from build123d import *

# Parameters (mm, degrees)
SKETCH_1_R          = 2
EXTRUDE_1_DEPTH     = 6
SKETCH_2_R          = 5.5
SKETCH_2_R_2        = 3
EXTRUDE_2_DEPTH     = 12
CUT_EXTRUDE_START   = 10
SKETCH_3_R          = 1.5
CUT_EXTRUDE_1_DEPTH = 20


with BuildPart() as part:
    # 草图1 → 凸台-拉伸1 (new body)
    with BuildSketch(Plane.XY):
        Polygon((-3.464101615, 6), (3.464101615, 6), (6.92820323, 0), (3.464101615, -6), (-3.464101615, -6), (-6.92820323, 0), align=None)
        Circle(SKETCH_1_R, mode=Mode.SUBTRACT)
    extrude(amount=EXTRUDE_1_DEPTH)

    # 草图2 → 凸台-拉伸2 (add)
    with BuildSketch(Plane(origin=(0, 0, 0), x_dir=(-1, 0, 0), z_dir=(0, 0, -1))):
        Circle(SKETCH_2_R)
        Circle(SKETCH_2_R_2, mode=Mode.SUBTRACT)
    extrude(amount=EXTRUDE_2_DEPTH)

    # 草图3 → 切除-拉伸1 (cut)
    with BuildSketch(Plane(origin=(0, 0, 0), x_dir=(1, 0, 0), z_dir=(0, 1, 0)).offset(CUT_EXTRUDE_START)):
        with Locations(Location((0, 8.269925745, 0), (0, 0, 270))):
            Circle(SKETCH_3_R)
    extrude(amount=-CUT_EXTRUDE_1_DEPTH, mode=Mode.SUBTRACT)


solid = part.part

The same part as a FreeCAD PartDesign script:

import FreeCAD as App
import Part
import Sketcher
from FreeCAD import Vector
Q = App.Units.Quantity

doc = App.newDocument("Part")
body = doc.addObject("PartDesign::Body", "Body")

# Sketch on XY plane
sketch1 = doc.addObject("Sketcher::SketchObject", "Sketch")
body.addObject(sketch1)
sketch1.AttachmentSupport = (doc.XY_Plane, [""])
sketch1.MapMode = "FlatFace"
sketch1.addGeometry(Part.LineSegment(Vector(3.5, 6, 0), Vector(-3.5, 6, 0)), False)
sketch1.addGeometry(Part.LineSegment(Vector(-3.5, 6, 0), Vector(-6.9, 0, 0)), False)
sketch1.addGeometry(Part.LineSegment(Vector(-6.9, 0, 0), Vector(-3.5, -6, 0)), False)
sketch1.addGeometry(Part.LineSegment(Vector(-3.5, -6, 0), Vector(3.5, -6, 0)), False)
sketch1.addGeometry(Part.LineSegment(Vector(3.5, -6, 0), Vector(6.9, 0, 0)), False)
sketch1.addGeometry(Part.LineSegment(Vector(6.9, 0, 0), Vector(3.5, 6, 0)), False)
sketch1.addGeometry(Part.Circle(Vector(0, 0, 0), Vector(0, 0, 1), 2), False)
sketch1.addConstraint(Sketcher.Constraint("Coincident", 0, 2, 1, 1))
sketch1.addConstraint(Sketcher.Constraint("Coincident", 1, 2, 2, 1))
sketch1.addConstraint(Sketcher.Constraint("Coincident", 2, 2, 3, 1))
sketch1.addConstraint(Sketcher.Constraint("Coincident", 3, 2, 4, 1))
sketch1.addConstraint(Sketcher.Constraint("Coincident", 4, 2, 5, 1))
sketch1.addConstraint(Sketcher.Constraint("Coincident", 5, 2, 0, 1))
sketch1.addConstraint(Sketcher.Constraint("Horizontal", 0))
sketch1.addConstraint(Sketcher.Constraint("Horizontal", 3))
sketch1.addConstraint(Sketcher.Constraint("Coincident", 6, 3, -1, 1))
sketch1.addConstraint(Sketcher.Constraint("Symmetric", 0, 2, 3, 2, -1, 1))
sketch1.addConstraint(Sketcher.Constraint("Symmetric", 1, 2, 4, 2, -1, 1))
sketch1.addConstraint(Sketcher.Constraint("PointOnObject", 1, 2, -1))
sketch1.addConstraint(Sketcher.Constraint("Parallel", 2, 5))
sketch1.addConstraint(Sketcher.Constraint("Vertical", 0, 2, 2, 2))
sketch1.addConstraint(Sketcher.Constraint("Diameter", 6, Q("4 mm")))
sketch1.addConstraint(Sketcher.Constraint("Angle", 1, Q("-120 deg")))
sketch1.addConstraint(Sketcher.Constraint("DistanceY", -1, 1, 0, 2, Q("6 mm")))
sketch1.addConstraint(Sketcher.Constraint("DistanceX", 0, 2, -1, 1, Q("3.464102 mm")))
pad1 = doc.addObject("PartDesign::Pad", "Pad")
body.addObject(pad1)
pad1.Profile = sketch1
pad1.Length = 6

# Sketch on XY plane
sketch2 = doc.addObject("Sketcher::SketchObject", "Sketch001")
body.addObject(sketch2)
sketch2.AttachmentSupport = (doc.XY_Plane, [""])
sketch2.MapMode = "FlatFace"
sketch2.addGeometry(Part.Circle(Vector(0, 0, 0), Vector(0, 0, 1), 5.5), False)
sketch2.addGeometry(Part.Circle(Vector(0, 0, 0), Vector(0, 0, 1), 3), False)
sketch2.addConstraint(Sketcher.Constraint("Coincident", 0, 3, -1, 1))
sketch2.addConstraint(Sketcher.Constraint("Coincident", 1, 3, -1, 1))
sketch2.addConstraint(Sketcher.Constraint("Diameter", 0, Q("11 mm")))
sketch2.addConstraint(Sketcher.Constraint("Diameter", 1, Q("6 mm")))
pad2 = doc.addObject("PartDesign::Pad", "Pad001")
body.addObject(pad2)
pad2.Profile = sketch2
pad2.Length = 12
pad2.Reversed = True

# Sketch on XZ plane
sketch3 = doc.addObject("Sketcher::SketchObject", "Sketch002")
body.addObject(sketch3)
sketch3.AttachmentSupport = (doc.XZ_Plane, [""])
sketch3.MapMode = "FlatFace"
sketch3.AttachmentOffset = App.Placement(Vector(0, 0, -10), App.Rotation())
sketch3.addGeometry(Part.Circle(Vector(0, -8.3, 0), Vector(0, 0, 1), 1.5), False)
sketch3.addConstraint(Sketcher.Constraint("PointOnObject", 0, 3, -2))
sketch3.addConstraint(Sketcher.Constraint("Diameter", 0, Q("3 mm")))
sketch3.addConstraint(Sketcher.Constraint("DistanceY", 0, 3, -1, 1, Q("8.269926 mm")))
pocket1 = doc.addObject("PartDesign::Pocket", "Pocket")
body.addObject(pocket1)
pocket1.Profile = sketch3
pocket1.Length = 20
pocket1.Reversed = True

doc.recompute()
